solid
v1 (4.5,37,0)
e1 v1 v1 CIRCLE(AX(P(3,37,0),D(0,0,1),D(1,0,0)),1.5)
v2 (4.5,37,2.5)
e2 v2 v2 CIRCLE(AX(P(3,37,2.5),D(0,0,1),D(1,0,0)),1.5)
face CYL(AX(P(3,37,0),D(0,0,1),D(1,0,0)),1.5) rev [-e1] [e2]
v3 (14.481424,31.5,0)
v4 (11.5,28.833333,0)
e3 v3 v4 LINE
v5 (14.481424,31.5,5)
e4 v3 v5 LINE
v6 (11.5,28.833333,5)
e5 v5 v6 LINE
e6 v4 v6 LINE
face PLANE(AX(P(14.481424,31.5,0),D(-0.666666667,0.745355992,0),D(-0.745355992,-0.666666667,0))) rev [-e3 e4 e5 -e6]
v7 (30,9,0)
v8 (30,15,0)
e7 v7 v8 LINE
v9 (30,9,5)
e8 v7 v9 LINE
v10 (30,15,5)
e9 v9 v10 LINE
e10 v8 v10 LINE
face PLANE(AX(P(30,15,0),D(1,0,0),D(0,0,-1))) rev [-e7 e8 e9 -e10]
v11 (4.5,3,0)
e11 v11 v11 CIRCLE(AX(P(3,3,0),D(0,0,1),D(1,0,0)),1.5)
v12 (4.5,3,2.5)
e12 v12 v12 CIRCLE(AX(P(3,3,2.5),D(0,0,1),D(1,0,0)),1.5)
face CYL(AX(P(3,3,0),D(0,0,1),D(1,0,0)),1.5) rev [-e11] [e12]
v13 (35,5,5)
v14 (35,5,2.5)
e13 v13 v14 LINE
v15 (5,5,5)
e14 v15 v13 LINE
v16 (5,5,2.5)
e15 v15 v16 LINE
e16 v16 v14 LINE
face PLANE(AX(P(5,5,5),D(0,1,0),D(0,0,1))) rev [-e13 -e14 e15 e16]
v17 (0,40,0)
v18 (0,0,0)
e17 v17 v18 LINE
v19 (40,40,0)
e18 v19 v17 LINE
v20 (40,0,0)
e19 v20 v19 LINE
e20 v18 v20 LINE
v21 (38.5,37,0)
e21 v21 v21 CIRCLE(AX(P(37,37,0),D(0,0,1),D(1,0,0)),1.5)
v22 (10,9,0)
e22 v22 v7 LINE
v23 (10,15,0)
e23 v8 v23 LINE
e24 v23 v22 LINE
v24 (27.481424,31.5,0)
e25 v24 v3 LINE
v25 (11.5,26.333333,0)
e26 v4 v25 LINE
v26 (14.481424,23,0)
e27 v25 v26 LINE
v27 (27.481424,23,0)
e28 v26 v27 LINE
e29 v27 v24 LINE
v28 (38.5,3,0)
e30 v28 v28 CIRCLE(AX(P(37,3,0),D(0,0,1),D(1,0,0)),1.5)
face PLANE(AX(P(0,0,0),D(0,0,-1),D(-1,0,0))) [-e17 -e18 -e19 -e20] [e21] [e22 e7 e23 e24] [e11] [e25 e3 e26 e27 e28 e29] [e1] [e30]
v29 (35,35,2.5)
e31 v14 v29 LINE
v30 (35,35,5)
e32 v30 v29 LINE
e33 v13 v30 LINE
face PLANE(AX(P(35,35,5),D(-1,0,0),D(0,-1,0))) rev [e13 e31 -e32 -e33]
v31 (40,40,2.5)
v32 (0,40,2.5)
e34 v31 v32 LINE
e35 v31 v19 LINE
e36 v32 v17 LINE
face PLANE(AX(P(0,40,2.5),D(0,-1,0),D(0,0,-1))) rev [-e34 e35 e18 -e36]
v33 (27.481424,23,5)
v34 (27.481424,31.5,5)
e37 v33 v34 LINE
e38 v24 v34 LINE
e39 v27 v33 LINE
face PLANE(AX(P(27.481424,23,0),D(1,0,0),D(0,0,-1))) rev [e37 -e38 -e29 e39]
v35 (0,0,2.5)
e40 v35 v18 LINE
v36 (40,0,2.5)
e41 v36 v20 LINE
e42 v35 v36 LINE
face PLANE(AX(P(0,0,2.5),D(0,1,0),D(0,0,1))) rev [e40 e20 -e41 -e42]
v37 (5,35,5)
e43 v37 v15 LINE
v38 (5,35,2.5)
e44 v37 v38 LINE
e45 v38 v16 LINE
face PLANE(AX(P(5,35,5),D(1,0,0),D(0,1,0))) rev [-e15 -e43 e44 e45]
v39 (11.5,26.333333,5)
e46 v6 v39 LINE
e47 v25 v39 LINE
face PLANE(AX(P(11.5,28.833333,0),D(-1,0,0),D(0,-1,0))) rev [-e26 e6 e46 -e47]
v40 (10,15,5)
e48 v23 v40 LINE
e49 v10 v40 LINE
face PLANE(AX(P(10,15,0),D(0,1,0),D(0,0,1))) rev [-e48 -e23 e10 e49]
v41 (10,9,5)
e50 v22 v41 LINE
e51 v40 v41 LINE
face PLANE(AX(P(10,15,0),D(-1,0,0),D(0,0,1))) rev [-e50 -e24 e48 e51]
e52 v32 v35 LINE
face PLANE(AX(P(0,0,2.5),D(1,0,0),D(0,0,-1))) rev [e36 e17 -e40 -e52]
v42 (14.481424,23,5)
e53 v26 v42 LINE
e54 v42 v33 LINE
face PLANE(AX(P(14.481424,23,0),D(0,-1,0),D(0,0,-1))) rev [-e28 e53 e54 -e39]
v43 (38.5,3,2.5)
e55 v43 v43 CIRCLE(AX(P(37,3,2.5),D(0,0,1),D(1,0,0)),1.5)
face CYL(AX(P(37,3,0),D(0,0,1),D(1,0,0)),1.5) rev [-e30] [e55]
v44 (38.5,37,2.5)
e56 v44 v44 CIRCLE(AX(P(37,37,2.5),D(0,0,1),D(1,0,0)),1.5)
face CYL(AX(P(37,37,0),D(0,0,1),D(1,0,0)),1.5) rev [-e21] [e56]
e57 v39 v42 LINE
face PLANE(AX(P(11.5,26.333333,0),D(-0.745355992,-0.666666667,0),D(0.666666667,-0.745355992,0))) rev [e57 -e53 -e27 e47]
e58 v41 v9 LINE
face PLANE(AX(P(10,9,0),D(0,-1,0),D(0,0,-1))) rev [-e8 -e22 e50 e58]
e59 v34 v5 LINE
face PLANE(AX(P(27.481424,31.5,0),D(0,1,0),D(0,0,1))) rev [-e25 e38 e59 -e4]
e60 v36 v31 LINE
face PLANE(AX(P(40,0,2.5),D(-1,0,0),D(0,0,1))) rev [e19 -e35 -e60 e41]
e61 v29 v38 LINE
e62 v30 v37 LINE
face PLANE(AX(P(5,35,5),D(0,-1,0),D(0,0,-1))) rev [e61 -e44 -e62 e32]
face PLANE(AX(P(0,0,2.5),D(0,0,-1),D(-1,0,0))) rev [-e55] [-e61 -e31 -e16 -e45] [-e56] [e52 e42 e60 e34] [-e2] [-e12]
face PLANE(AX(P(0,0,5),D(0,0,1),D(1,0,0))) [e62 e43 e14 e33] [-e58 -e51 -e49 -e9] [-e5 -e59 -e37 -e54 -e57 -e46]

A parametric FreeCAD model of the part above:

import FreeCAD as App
import Part
import Sketcher
from FreeCAD import Vector
Q = App.Units.Quantity

doc = App.newDocument("Part")
params = doc.addObject("Spreadsheet::Sheet", "Params")
for row, (alias, value) in enumerate([
    ("sketch1_width", "40 mm"),
    ("pad1_length", "2.5 mm"),
    ("sketch2_width", "30 mm"),
    ("pad2_length", "2.5 mm"),
    ("sketch3_diameter", "3 mm"),
    ("pocket1_length", "2.5 mm"),
    ("sketch4_width", "13 mm"),
    ("sketch4_width2", "20 mm"),
    ("sketch4_height", "6 mm"),
    ("sketch4_length", "4 mm"),
    ("sketch4_height2", "2.5 mm"),
    ("pocket2_length", "5 mm"),
], start=1):
    params.set(f"A{row}", alias)
    params.set(f"B{row}", "=" + value)
    params.setAlias(f"B{row}", alias)

body = doc.addObject("PartDesign::Body", "Body")

# Sketch on XY plane
sketch1 = body.newObject("Sketcher::SketchObject", "Sketch")
sketch1.AttachmentSupport = (doc.getObject("XY_Plane"), [""])
sketch1.MapMode = "FlatFace"
sketch1.addGeometry(Part.LineSegment(Vector(0, 40, 0), Vector(0, 0, 0)), False)
sketch1.addGeometry(Part.LineSegment(Vector(0, 0, 0), Vector(40, 0, 0)), False)
sketch1.addGeometry(Part.LineSegment(Vector(40, 0, 0), Vector(40, 40, 0)), False)
sketch1.addGeometry(Part.LineSegment(Vector(40, 40, 0), Vector(0, 40, 0)), False)
sketch1.addConstraint(Sketcher.Constraint("Coincident", 0, 2, 1, 1))
sketch1.addConstraint(Sketcher.Constraint("Coincident", 1, 2, 2, 1))
sketch1.addConstraint(Sketcher.Constraint("Coincident", 2, 2, 3, 1))
sketch1.addConstraint(Sketcher.Constraint("Coincident", 3, 2, 0, 1))
sketch1.addConstraint(Sketcher.Constraint("Vertical", 0))
sketch1.addConstraint(Sketcher.Constraint("Horizontal", 1))
sketch1.addConstraint(Sketcher.Constraint("Vertical", 2))
sketch1.addConstraint(Sketcher.Constraint("Horizontal", 3))
sketch1.addConstraint(Sketcher.Constraint("Coincident", 0, 2, -1, 1))
sketch1.addConstraint(Sketcher.Constraint("Equal", 3, 0))
sketch1.addConstraint(Sketcher.Constraint("DistanceX", 1, 1, 1, 2, Q("40 mm")))
sketch1.setExpression("Constraints[10]", "Params.sketch1_width")
pad1 = body.newObject("PartDesign::Pad", "Pad")
pad1.Profile = sketch1
pad1.setExpression("Length", "Params.pad1_length")

# Sketch on XY plane
sketch2 = body.newObject("Sketcher::SketchObject", "Sketch001")
sketch2.AttachmentSupport = (doc.getObject("XY_Plane"), [""])
sketch2.MapMode = "FlatFace"
sketch2.AttachmentOffset = App.Placement(Vector(0, 0, 2.5), App.Rotation())
sketch2.addGeometry(Part.LineSegment(Vector(5, 35, 0), Vector(5, 5, 0)), False)
sketch2.addGeometry(Part.LineSegment(Vector(5, 5, 0), Vector(35, 5, 0)), False)
sketch2.addGeometry(Part.LineSegment(Vector(35, 5, 0), Vector(35, 35, 0)), False)
sketch2.addGeometry(Part.LineSegment(Vector(35, 35, 0), Vector(5, 35, 0)), False)
sketch2.addConstraint(Sketcher.Constraint("Coincident", 0, 2, 1, 1))
sketch2.addConstraint(Sketcher.Constraint("Coincident", 1, 2, 2, 1))
sketch2.addConstraint(Sketcher.Constraint("Coincident", 2, 2, 3, 1))
sketch2.addConstraint(Sketcher.Constraint("Coincident", 3, 2, 0, 1))
sketch2.addConstraint(Sketcher.Constraint("Vertical", 0))
sketch2.addConstraint(Sketcher.Constraint("Horizontal", 1))
sketch2.addConstraint(Sketcher.Constraint("Vertical", 2))
sketch2.addConstraint(Sketcher.Constraint("Horizontal", 3))
sketch2.addConstraint(Sketcher.Constraint("Equal", 3, 0))
sketch2.addConstraint(Sketcher.Constraint("DistanceX", 1, 1, 1, 2, Q("30 mm")))
sketch2.addConstraint(Sketcher.Constraint("DistanceX", -1, 1, 0, 2, Q("5 mm")))
sketch2.addConstraint(Sketcher.Constraint("DistanceY", -1, 1, 0, 2, Q("5 mm")))
sketch2.setExpression("Constraints[9]", "Params.sketch2_width")
pad2 = body.newObject("PartDesign::Pad", "Pad001")
pad2.Profile = sketch2
pad2.setExpression("Length", "Params.pad2_length")

# Sketch on XY plane
sketch3 = body.newObject("Sketcher::SketchObject", "Sketch002")
sketch3.AttachmentSupport = (doc.getObject("XY_Plane"), [""])
sketch3.MapMode = "FlatFace"
sketch3.AttachmentOffset = App.Placement(Vector(0, 0, 2.5), App.Rotation())
sketch3.addGeometry(Part.Circle(Vector(3, 37, 0), Vector(0, 0, 1), 1.5), False)
sketch3.addGeometry(Part.Circle(Vector(37, 37, 0), Vector(0, 0, 1), 1.5), False)
sketch3.addGeometry(Part.Circle(Vector(37, 3, 0), Vector(0, 0, 1), 1.5), False)
sketch3.addGeometry(Part.Circle(Vector(3, 3, 0), Vector(0, 0, 1), 1.5), False)
sketch3.addConstraint(Sketcher.Constraint("Equal", 0, 1))
sketch3.addConstraint(Sketcher.Constraint("Equal", 1, 2))
sketch3.addConstraint(Sketcher.Constraint("Equal", 2, 3))
sketch3.addConstraint(Sketcher.Constraint("Horizontal", 0, 3, 1, 3))
sketch3.addConstraint(Sketcher.Constraint("Horizontal", 2, 3, 3, 3))
sketch3.addConstraint(Sketcher.Constraint("Vertical", 1, 3, 2, 3))
sketch3.addConstraint(Sketcher.Constraint("Vertical", 0, 3, 3, 3))
sketch3.addConstraint(Sketcher.Constraint("Diameter", 0, Q("3 mm")))
sketch3.addConstraint(Sketcher.Constraint("DistanceX", -1, 1, 0, 3, Q("3 mm")))
sketch3.addConstraint(Sketcher.Constraint("DistanceY", -1, 1, 0, 3, Q("37 mm")))
sketch3.addConstraint(Sketcher.Constraint("DistanceX", -1, 1, 1, 3, Q("37 mm")))
sketch3.addConstraint(Sketcher.Constraint("DistanceY", -1, 1, 2, 3, Q("3 mm")))
sketch3.setExpression("Constraints[7]", "Params.sketch3_diameter")
pocket1 = body.newObject("PartDesign::Pocket", "Pocket")
pocket1.Profile = sketch3
pocket1.setExpression("Length", "Params.pocket1_length")

# Sketch on XY plane
sketch4 = body.newObject("Sketcher::SketchObject", "Sketch003")
sketch4.AttachmentSupport = (doc.getObject("XY_Plane"), [""])
sketch4.MapMode = "FlatFace"
sketch4.AttachmentOffset = App.Placement(Vector(0, 0, 5), App.Rotation())
sketch4.addGeometry(Part.LineSegment(Vector(27.5, 31.5, 0), Vector(14.5, 31.5, 0)), False)
sketch4.addGeometry(Part.LineSegment(Vector(14.5, 31.5, 0), Vector(11.5, 28.8, 0)), False)
sketch4.addGeometry(Part.LineSegment(Vector(11.5, 28.8, 0), Vector(11.5, 26.3, 0)), False)
sketch4.addGeometry(Part.LineSegment(Vector(11.5, 26.3, 0), Vector(14.5, 23, 0)), False)
sketch4.addGeometry(Part.LineSegment(Vector(14.5, 23, 0), Vector(27.5, 23, 0)), False)
sketch4.addGeometry(Part.LineSegment(Vector(27.5, 23, 0), Vector(27.5, 31.5, 0)), False)
sketch4.addGeometry(Part.LineSegment(Vector(10, 15, 0), Vector(10, 9, 0)), False)
sketch4.addGeometry(Part.LineSegment(Vector(10, 9, 0), Vector(30, 9, 0)), False)
sketch4.addGeometry(Part.LineSegment(Vector(30, 9, 0), Vector(30, 15, 0)), False)
sketch4.addGeometry(Part.LineSegment(Vector(30, 15, 0), Vector(10, 15, 0)), False)
sketch4.addConstraint(Sketcher.Constraint("Coincident", 0, 2, 1, 1))
sketch4.addConstraint(Sketcher.Constraint("Coincident", 1, 2, 2, 1))
sketch4.addConstraint(Sketcher.Constraint("Coincident", 2, 2, 3, 1))
sketch4.addConstraint(Sketcher.Constraint("Coincident", 3, 2, 4, 1))
sketch4.addConstraint(Sketcher.Constraint("Coincident", 4, 2, 5, 1))
sketch4.addConstraint(Sketcher.Constraint("Coincident", 5, 2, 0, 1))
sketch4.addConstraint(Sketcher.Constraint("Coincident", 6, 2, 7, 1))
sketch4.addConstraint(Sketcher.Constraint("Coincident", 7, 2, 8, 1))
sketch4.addConstraint(Sketcher.Constraint("Coincident", 8, 2, 9, 1))
sketch4.addConstraint(Sketcher.Constraint("Coincident", 9, 2, 6, 1))
sketch4.addConstraint(Sketcher.Constraint("Horizontal", 0))
sketch4.addConstraint(Sketcher.Constraint("Vertical", 2))
sketch4.addConstraint(Sketcher.Constraint("Horizontal", 4))
sketch4.addConstraint(Sketcher.Constraint("Vertical", 5))
sketch4.addConstraint(Sketcher.Constraint("Vertical", 6))
sketch4.addConstraint(Sketcher.Constraint("Horizontal", 7))
sketch4.addConstraint(Sketcher.Constraint("Vertical", 8))
sketch4.addConstraint(Sketcher.Constraint("Horizontal", 9))
sketch4.addConstraint(Sketcher.Constraint("Perpendicular", 1, 3))
sketch4.addConstraint(Sketcher.Constraint("Vertical", 0, 2, 3, 2))
sketch4.addConstraint(Sketcher.Constraint("DistanceX", 0, 2, 0, 1, Q("13 mm")))
sketch4.addConstraint(Sketcher.Constraint("DistanceX", 7, 1, 7, 2, Q("20 mm")))
sketch4.addConstraint(Sketcher.Constraint("DistanceY", 6, 2, 6, 1, Q("6 mm")))
sketch4.addConstraint(Sketcher.Constraint("Distance", 1, Q("4 mm")))
sketch4.addConstraint(Sketcher.Constraint("DistanceY", 2, 2, 2, 1, Q("2.5 mm")))
sketch4.addConstraint(Sketcher.Constraint("DistanceY", 5, 1, 5, 2, Q("8.5 mm")))
sketch4.addConstraint(Sketcher.Constraint("DistanceY", -1, 1, 3, 2, Q("23 mm")))
sketch4.addConstraint(Sketcher.Constraint("DistanceX", -1, 1, 6, 2, Q("10 mm")))
sketch4.addConstraint(Sketcher.Constraint("DistanceY", -1, 1, 6, 2, Q("9 mm")))
sketch4.addConstraint(Sketcher.Constraint("DistanceX", -1, 1, 1, 2, Q("11.5 mm")))
sketch4.setExpression("Constraints[20]", "Params.sketch4_width")
sketch4.setExpression("Constraints[21]", "Params.sketch4_width2")
sketch4.setExpression("Constraints[22]", "Params.sketch4_height")
sketch4.setExpression("Constraints[23]", "Params.sketch4_length")
sketch4.setExpression("Constraints[24]", "Params.sketch4_height2")
pocket2 = body.newObject("PartDesign::Pocket", "Pocket001")
pocket2.Profile = sketch4
pocket2.setExpression("Length", "Params.pocket2_length")

doc.recompute()
